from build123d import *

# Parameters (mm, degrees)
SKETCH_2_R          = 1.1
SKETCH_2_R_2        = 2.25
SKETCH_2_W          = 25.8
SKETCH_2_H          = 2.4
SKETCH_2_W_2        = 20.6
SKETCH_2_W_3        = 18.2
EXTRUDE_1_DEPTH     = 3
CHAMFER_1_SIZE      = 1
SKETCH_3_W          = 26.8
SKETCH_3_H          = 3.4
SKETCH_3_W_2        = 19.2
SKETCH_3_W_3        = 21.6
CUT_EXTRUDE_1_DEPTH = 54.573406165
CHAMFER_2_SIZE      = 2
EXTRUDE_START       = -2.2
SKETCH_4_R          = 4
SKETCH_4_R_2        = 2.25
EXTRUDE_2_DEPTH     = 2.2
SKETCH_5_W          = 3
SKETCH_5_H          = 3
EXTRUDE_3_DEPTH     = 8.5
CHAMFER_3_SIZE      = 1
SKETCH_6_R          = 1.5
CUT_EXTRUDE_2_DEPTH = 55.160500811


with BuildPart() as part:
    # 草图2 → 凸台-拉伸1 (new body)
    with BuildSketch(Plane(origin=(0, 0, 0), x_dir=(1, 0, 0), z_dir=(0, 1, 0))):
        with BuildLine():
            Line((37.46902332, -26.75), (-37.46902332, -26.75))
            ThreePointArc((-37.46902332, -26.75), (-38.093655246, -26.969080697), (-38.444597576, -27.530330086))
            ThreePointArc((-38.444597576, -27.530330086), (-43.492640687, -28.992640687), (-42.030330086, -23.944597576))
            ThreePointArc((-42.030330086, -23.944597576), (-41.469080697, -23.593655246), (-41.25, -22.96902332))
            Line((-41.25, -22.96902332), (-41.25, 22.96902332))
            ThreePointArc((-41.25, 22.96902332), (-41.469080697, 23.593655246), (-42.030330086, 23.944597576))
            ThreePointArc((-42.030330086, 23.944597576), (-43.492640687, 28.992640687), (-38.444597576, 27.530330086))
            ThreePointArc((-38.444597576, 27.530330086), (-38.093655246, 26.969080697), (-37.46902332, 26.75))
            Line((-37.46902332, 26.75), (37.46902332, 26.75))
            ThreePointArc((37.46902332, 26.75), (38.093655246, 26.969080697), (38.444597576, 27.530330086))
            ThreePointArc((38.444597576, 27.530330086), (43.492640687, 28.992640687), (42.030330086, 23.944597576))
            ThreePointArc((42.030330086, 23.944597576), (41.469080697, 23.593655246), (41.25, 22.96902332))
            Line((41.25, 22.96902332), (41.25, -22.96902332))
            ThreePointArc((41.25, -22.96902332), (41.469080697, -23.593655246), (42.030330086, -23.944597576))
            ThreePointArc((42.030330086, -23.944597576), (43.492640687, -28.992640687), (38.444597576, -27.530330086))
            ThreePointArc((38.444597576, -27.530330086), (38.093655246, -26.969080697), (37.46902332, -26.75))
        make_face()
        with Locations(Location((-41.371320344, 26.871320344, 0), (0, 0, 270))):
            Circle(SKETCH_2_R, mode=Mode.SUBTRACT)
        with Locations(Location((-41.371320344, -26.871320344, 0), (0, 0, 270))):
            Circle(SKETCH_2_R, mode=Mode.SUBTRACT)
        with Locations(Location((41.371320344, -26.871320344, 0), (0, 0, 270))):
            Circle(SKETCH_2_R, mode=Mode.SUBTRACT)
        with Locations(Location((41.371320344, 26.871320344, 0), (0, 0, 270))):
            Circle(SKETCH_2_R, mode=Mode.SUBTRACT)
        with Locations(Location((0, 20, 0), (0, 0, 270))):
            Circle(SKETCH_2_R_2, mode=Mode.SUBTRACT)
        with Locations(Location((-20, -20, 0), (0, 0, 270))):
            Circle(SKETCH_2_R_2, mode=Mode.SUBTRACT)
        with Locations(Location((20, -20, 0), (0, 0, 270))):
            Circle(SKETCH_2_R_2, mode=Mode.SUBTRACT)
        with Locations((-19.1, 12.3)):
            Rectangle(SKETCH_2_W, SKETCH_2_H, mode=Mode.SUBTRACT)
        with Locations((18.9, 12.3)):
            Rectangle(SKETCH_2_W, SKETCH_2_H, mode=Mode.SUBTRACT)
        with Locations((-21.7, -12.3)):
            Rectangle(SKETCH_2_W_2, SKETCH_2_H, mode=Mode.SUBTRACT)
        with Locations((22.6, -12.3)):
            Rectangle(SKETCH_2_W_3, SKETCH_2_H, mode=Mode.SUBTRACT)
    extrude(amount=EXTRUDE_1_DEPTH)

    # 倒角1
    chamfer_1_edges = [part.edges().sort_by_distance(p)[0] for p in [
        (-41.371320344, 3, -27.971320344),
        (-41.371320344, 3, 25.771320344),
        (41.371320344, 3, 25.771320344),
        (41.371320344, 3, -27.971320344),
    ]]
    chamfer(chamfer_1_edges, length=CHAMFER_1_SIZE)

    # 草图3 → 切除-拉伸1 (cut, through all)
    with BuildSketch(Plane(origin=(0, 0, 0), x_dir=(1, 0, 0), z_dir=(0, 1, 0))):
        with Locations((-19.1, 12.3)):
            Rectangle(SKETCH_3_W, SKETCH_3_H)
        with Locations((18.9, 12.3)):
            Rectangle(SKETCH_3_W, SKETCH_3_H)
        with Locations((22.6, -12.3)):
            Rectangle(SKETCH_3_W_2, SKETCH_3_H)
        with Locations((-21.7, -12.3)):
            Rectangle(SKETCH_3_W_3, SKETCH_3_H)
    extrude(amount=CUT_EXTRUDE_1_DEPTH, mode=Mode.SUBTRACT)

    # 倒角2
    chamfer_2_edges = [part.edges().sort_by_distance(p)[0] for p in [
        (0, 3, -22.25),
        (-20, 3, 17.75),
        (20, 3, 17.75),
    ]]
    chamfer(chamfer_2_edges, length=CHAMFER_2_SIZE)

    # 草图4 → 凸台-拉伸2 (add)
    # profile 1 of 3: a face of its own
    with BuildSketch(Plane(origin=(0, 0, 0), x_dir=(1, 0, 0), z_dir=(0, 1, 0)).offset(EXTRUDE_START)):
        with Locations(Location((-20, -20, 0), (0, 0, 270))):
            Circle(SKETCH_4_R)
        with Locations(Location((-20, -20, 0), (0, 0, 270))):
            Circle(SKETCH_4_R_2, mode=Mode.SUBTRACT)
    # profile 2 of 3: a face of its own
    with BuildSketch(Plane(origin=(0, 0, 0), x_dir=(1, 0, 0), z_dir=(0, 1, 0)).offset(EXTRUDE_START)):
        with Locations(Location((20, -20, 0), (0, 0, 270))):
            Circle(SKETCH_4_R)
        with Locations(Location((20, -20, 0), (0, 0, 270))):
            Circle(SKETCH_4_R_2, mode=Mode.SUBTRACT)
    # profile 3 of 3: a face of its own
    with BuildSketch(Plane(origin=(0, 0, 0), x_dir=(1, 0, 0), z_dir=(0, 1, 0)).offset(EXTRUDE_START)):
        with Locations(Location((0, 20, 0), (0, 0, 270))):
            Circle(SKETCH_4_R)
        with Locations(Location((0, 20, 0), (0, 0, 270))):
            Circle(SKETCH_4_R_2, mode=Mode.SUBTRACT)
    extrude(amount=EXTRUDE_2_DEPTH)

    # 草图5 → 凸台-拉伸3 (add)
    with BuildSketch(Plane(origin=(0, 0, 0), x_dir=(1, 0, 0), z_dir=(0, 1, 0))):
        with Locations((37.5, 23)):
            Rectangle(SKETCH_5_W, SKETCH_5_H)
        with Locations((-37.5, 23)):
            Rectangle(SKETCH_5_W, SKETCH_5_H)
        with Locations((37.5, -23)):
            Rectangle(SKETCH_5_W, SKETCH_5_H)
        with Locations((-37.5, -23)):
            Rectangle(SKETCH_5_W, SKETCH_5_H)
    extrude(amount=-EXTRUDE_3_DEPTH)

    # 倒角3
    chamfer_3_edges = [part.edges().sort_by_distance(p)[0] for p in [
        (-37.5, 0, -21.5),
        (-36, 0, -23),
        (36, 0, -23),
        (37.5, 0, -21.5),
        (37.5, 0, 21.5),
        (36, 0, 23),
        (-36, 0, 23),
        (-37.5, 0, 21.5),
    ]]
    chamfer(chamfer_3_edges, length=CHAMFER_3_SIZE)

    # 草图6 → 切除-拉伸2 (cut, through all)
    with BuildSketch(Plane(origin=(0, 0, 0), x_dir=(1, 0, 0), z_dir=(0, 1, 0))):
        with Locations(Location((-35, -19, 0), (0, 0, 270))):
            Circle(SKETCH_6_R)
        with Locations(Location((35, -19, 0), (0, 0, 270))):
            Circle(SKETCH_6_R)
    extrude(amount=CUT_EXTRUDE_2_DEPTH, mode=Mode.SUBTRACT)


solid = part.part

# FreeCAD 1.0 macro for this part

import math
import FreeCAD as App
import Part
import Sketcher
Q = App.Units.Quantity


def edges_at(feature, points):
    """Names of the edges that pass closest to the given points."""
    edges = feature.Shape.Edges
    near = lambda p: min(range(len(edges)), key=lambda i: edges[i].distToShape(Part.Vertex(*p))[0])
    return sorted({f"Edge{near(p) + 1}" for p in points})

doc = App.newDocument("Part")
params = doc.addObject("Spreadsheet::Sheet", "Params")
for row, (alias, value) in enumerate([
    ("sketch1_radius", "1 mm"),
    ("sketch1_radius2", "3 mm"),
    ("sketch1_diameter", "2.2 mm"),
    ("sketch1_diameter2", "4.5 mm"),
    ("sketch1_width", "18.2 mm"),
    ("pad1_length", "3 mm"),
    ("chamfer_size", "1 mm"),
    ("sketch2_width", "26.8 mm"),
    ("sketch2_width2", "19.2 mm"),
    ("sketch2_width3", "21.6 mm"),
    ("sketch2_height", "3.4 mm"),
    ("chamfer2_size", "2 mm"),
    ("sketch3_diameter", "8 mm"),
    ("sketch3_diameter2", "4.5 mm"),
    ("pad2_length", "2.2 mm"),
    ("sketch4_width", "3 mm"),
    ("pad3_length", "8.5 mm"),
    ("chamfer3_size", "1 mm"),
    ("sketch5_diameter", "3 mm"),
], start=1):
    params.set(f"A{row}", alias)
    params.set(f"B{row}", "=" + value)
    params.setAlias(f"B{row}", alias)

body = doc.addObject("PartDesign::Body", "Body")

# Sketch on XZ plane
sketch1 = body.newObject("Sketcher::SketchObject", "Sketch")
sketch1.AttachmentSupport = (doc.getObject("XZ_Plane"), [""])
sketch1.MapMode = "FlatFace"
sketch1.addGeometry([
    Part.LineSegment(App.Vector(-37.5, 26.8, 0), App.Vector(37.5, 26.8, 0)),  # 0
    Part.ArcOfCircle(Part.Circle(App.Vector(37.5, 27.7, 0), App.Vector(0, 0, 1), 1), math.radians(-90), math.radians(-13)),  # 1
    Part.ArcOfCircle(Part.Circle(App.Vector(41.4, 26.9, 0), App.Vector(0, 0, 1), 3), math.radians(-77), math.radians(167)),  # 2
    Part.ArcOfCircle(Part.Circle(App.Vector(42.2, 23, 0), App.Vector(0, 0, 1), 1), math.radians(103), math.radians(180)),  # 3
    Part.LineSegment(App.Vector(41.2, 23, 0), App.Vector(41.2, -23, 0)),  # 4
    Part.ArcOfCircle(Part.Circle(App.Vector(42.2, -23, 0), App.Vector(0, 0, 1), 1), math.radians(180), math.radians(257)),  # 5
    Part.ArcOfCircle(Part.Circle(App.Vector(41.4, -26.9, 0), App.Vector(0, 0, 1), 3), math.radians(-167), math.radians(77)),  # 6
    Part.ArcOfCircle(Part.Circle(App.Vector(37.5, -27.7, 0), App.Vector(0, 0, 1), 1), math.radians(13), math.radians(90)),  # 7
    Part.LineSegment(App.Vector(37.5, -26.8, 0), App.Vector(-37.5, -26.8, 0)),  # 8
    Part.ArcOfCircle(Part.Circle(App.Vector(-37.5, -27.7, 0), App.Vector(0, 0, 1), 1), math.radians(90), math.radians(167)),  # 9
    Part.ArcOfCircle(Part.Circle(App.Vector(-41.4, -26.9, 0), App.Vector(0, 0, 1), 3), math.radians(103), math.radians(347)),  # 10
    Part.ArcOfCircle(Part.Circle(App.Vector(-42.2, -23, 0), App.Vector(0, 0, 1), 1), math.radians(-77), math.radians(0)),  # 11
    Part.LineSegment(App.Vector(-41.2, -23, 0), App.Vector(-41.2, 23, 0)),  # 12
    Part.ArcOfCircle(Part.Circle(App.Vector(-42.2, 23, 0), App.Vector(0, 0, 1), 1), math.radians(0), math.radians(77)),  # 13
    Part.ArcOfCircle(Part.Circle(App.Vector(-41.4, 26.9, 0), App.Vector(0, 0, 1), 3), math.radians(13), math.radians(257)),  # 14
    Part.ArcOfCircle(Part.Circle(App.Vector(-37.5, 27.7, 0), App.Vector(0, 0, 1), 1), math.radians(-167), math.radians(-90)),  # 15
    Part.Circle(App.Vector(41.4, 26.9, 0), App.Vector(0, 0, 1), 1.1),  # 16
    Part.Circle(App.Vector(20, 20, 0), App.Vector(0, 0, 1), 2.2),  # 17
    Part.LineSegment(App.Vector(13.5, 13.5, 0), App.Vector(13.5, 11.1, 0)),  # 18
    Part.LineSegment(App.Vector(13.5, 11.1, 0), App.Vector(31.7, 11.1, 0)),  # 19
    Part.LineSegment(App.Vector(31.7, 11.1, 0), App.Vector(31.7, 13.5, 0)),  # 20
    Part.LineSegment(App.Vector(31.7, 13.5, 0), App.Vector(13.5, 13.5, 0)),  # 21
    Part.Circle(App.Vector(-20, 20, 0), App.Vector(0, 0, 1), 2.2),  # 22
    Part.Circle(App.Vector(-41.4, 26.9, 0), App.Vector(0, 0, 1), 1.1),  # 23
    Part.LineSegment(App.Vector(-32, 13.5, 0), App.Vector(-32, 11.1, 0)),  # 24
    Part.LineSegment(App.Vector(-32, 11.1, 0), App.Vector(-11.4, 11.1, 0)),  # 25
    Part.LineSegment(App.Vector(-11.4, 11.1, 0), App.Vector(-11.4, 13.5, 0)),  # 26
    Part.LineSegment(App.Vector(-11.4, 13.5, 0), App.Vector(-32, 13.5, 0)),  # 27
    Part.LineSegment(App.Vector(6, -11.1, 0), App.Vector(6, -13.5, 0)),  # 28
    Part.LineSegment(App.Vector(6, -13.5, 0), App.Vector(31.8, -13.5, 0)),  # 29
    Part.LineSegment(App.Vector(31.8, -13.5, 0), App.Vector(31.8, -11.1, 0)),  # 30
    Part.LineSegment(App.Vector(31.8, -11.1, 0), App.Vector(6, -11.1, 0)),  # 31
    Part.Circle(App.Vector(41.4, -26.9, 0), App.Vector(0, 0, 1), 1.1),  # 32
    Part.LineSegment(App.Vector(-32, -11.1, 0), App.Vector(-32, -13.5, 0)),  # 33
    Part.LineSegment(App.Vector(-32, -13.5, 0), App.Vector(-6.2, -13.5, 0)),  # 34
    Part.LineSegment(App.Vector(-6.2, -13.5, 0), App.Vector(-6.2, -11.1, 0)),  # 35
    Part.LineSegment(App.Vector(-6.2, -11.1, 0), App.Vector(-32, -11.1, 0)),  # 36
    Part.Circle(App.Vector(0, -20, 0), App.Vector(0, 0, 1), 2.2),  # 37
    Part.Circle(App.Vector(-41.4, -26.9, 0), App.Vector(0, 0, 1), 1.1),  # 38
], False)
sketch1.addConstraint([
    Sketcher.Constraint("Tangent", 0, 2, 1, 1),
    Sketcher.Constraint("Tangent", 1, 2, 2, 2),
    Sketcher.Constraint("Tangent", 2, 1, 3, 1),
    Sketcher.Constraint("Tangent", 3, 2, 4, 1),
    Sketcher.Constraint("Tangent", 4, 2, 5, 1),
    Sketcher.Constraint("Tangent", 5, 2, 6, 2),
    Sketcher.Constraint("Tangent", 6, 1, 7, 1),
    Sketcher.Constraint("Tangent", 7, 2, 8, 1),
    Sketcher.Constraint("Tangent", 8, 2, 9, 1),
    Sketcher.Constraint("Tangent", 9, 2, 10, 2),
    Sketcher.Constraint("Tangent", 10, 1, 11, 1),
    Sketcher.Constraint("Tangent", 11, 2, 12, 1),
    Sketcher.Constraint("Tangent", 12, 2, 13, 1),
    Sketcher.Constraint("Tangent", 13, 2, 14, 2),
    Sketcher.Constraint("Tangent", 14, 1, 15, 1),
    Sketcher.Constraint("Tangent", 15, 2, 0, 1),
    Sketcher.Constraint("Coincident", 18, 2, 19, 1),
    Sketcher.Constraint("Coincident", 19, 2, 20, 1),
    Sketcher.Constraint("Coincident", 20, 2, 21, 1),
    Sketcher.Constraint("Coincident", 21, 2, 18, 1),
    Sketcher.Constraint("Coincident", 24, 2, 25, 1),
    Sketcher.Constraint("Coincident", 25, 2, 26, 1),
    Sketcher.Constraint("Coincident", 26, 2, 27, 1),
    Sketcher.Constraint("Coincident", 27, 2, 24, 1),
    Sketcher.Constraint("Coincident", 28, 2, 29, 1),
    Sketcher.Constraint("Coincident", 29, 2, 30, 1),
    Sketcher.Constraint("Coincident", 30, 2, 31, 1),
    Sketcher.Constraint("Coincident", 31, 2, 28, 1),
    Sketcher.Constraint("Coincident", 33, 2, 34, 1),
    Sketcher.Constraint("Coincident", 34, 2, 35, 1),
    Sketcher.Constraint("Coincident", 35, 2, 36, 1),
    Sketcher.Constraint("Coincident", 36, 2, 33, 1),
    Sketcher.Constraint("Horizontal", 0),
    Sketcher.Constraint("Vertical", 4),
    Sketcher.Constraint("Horizontal", 8),
    Sketcher.Constraint("Vertical", 12),
    Sketcher.Constraint("Vertical", 18),
    Sketcher.Constraint("Horizontal", 19),
    Sketcher.Constraint("Vertical", 20),
    Sketcher.Constraint("Horizontal", 21),
    Sketcher.Constraint("Vertical", 24),
    Sketcher.Constraint("Horizontal", 25),
    Sketcher.Constraint("Vertical", 26),
    Sketcher.Constraint("Horizontal", 27),
    Sketcher.Constraint("Vertical", 28),
    Sketcher.Constraint("Horizontal", 29),
    Sketcher.Constraint("Vertical", 30),
    Sketcher.Constraint("Horizontal", 31),
    Sketcher.Constraint("Vertical", 33),
    Sketcher.Constraint("Horizontal", 34),
    Sketcher.Constraint("Vertical", 35),
    Sketcher.Constraint("Horizontal", 36),
    Sketcher.Constraint("Coincident", 16, 3, 2, 3),
    Sketcher.Constraint("Coincident", 23, 3, 14, 3),
    Sketcher.Constraint("Coincident", 32, 3, 6, 3),
    Sketcher.Constraint("Coincident", 38, 3, 10, 3),
    Sketcher.Constraint("Equal", 1, 3),
    Sketcher.Constraint("Equal", 3, 5),
    Sketcher.Constraint("Equal", 2, 6),
    Sketcher.Constraint("Equal", 5, 7),
    Sketcher.Constraint("Equal", 7, 9),
    Sketcher.Constraint("Equal", 6, 10),
    Sketcher.Constraint("Equal", 9, 11),
    Sketcher.Constraint("Equal", 11, 13),
    Sketcher.Constraint("Equal", 10, 14),
    Sketcher.Constraint("Equal", 13, 15),
    Sketcher.Constraint("Equal", 17, 22),
    Sketcher.Constraint("Equal", 16, 23),
    Sketcher.Constraint("Equal", 23, 32),
    Sketcher.Constraint("Equal", 22, 37),
    Sketcher.Constraint("Equal", 32, 38),
    Sketcher.Constraint("Symmetric", 1, 3, 9, 3, -1, 1),
    Sketcher.Constraint("Symmetric", 3, 3, 11, 3, -1, 1),
    Sketcher.Constraint("Symmetric", 6, 3, 14, 3, -1, 1),
    Sketcher.Constraint("Symmetric", 6, 3, 10, 3, -2),
    Sketcher.Constraint("Symmetric", 17, 3, 22, 3, -2),
    Sketcher.Constraint("Symmetric", 27, 2, 33, 2, -1),
    Sketcher.Constraint("PointOnObject", 37, 3, -2),
    Sketcher.Constraint("Horizontal", 19, 2, 24, 2),
    Sketcher.Constraint("Horizontal", 21, 2, 26, 2),
    Sketcher.Constraint("Horizontal", 29, 2, 33, 2),
    Sketcher.Constraint("Horizontal", 31, 2, 35, 2),
    Sketcher.Constraint("Equal", 31, 34),
    Sketcher.Constraint("Equal", 26, 28),
    Sketcher.Constraint("Radius", 1, Q("1 mm")),
    Sketcher.Constraint("Radius", 2, Q("3 mm")),
    Sketcher.Constraint("Diameter", 16, Q("2.2 mm")),
    Sketcher.Constraint("Diameter", 17, Q("4.5 mm")),
    Sketcher.Constraint("DistanceX", 19, 1, 19, 2, Q("18.2 mm")),
    Sketcher.Constraint("DistanceX", 25, 1, 25, 2, Q("20.6 mm")),
    Sketcher.Constraint("DistanceX", 29, 1, 29, 2, Q("25.8 mm")),
    Sketcher.Constraint("DistanceY", 18, 2, 18, 1, Q("2.4 mm")),
    Sketcher.Constraint("DistanceX", -1, 1, 17, 3, Q("20 mm")),
    Sketcher.Constraint("DistanceY", -1, 1, 17, 3, Q("20 mm")),
    Sketcher.Constraint("DistanceY", 37, 3, -1, 1, Q("20 mm")),
    Sketcher.Constraint("DistanceX", 24, 2, -1, 1, Q("32 mm")),
    Sketcher.Constraint("DistanceX", -1, 1, 28, 2, Q("6 mm")),
    Sketcher.Constraint("DistanceY", 28, 2, 21, 2, Q("27 mm")),
    Sketcher.Constraint("DistanceX", -1, 1, 18, 2, Q("13.5 mm")),
    Sketcher.Constraint("DistanceY", 7, 3, 1, 3, Q("55.5 mm")),
    Sketcher.Constraint("DistanceX", 11, 3, 5, 3, Q("84.5 mm")),
    Sketcher.Constraint("DistanceX", 0, 1, 0, 2, Q("74.938047 mm")),
    Sketcher.Constraint("DistanceY", 4, 2, 4, 1, Q("45.938047 mm")),
])
sketch1.setExpression("Constraints[84]", "Params.sketch1_radius")
sketch1.setExpression("Constraints[85]", "Params.sketch1_radius2")
sketch1.setExpression("Constraints[86]", "Params.sketch1_diameter")
sketch1.setExpression("Constraints[87]", "Params.sketch1_diameter2")
sketch1.setExpression("Constraints[88]", "Params.sketch1_width")
pad1 = body.newObject("PartDesign::Pad", "Pad")
pad1.Profile = sketch1
pad1.setExpression("Length", "Params.pad1_length")
pad1.Reversed = True
doc.recompute()

chamfer = body.newObject("PartDesign::Chamfer", "Chamfer")
chamfer.Base = (pad1, edges_at(pad1, [
    (-41.371, 3, -27.971),
    (-41.371, 3, 25.771),
    (41.371, 3, 25.771),
    (41.371, 3, -27.971),
]))
chamfer.setExpression("Size", "Params.chamfer_size")

# Sketch on XZ plane
sketch2 = body.newObject("Sketcher::SketchObject", "Sketch001")
sketch2.AttachmentSupport = (doc.getObject("XZ_Plane"), [""])
sketch2.MapMode = "FlatFace"
sketch2.addGeometry([
    Part.LineSegment(App.Vector(-32.5, -14, 0), App.Vector(-32.5, -10.6, 0)),  # 0
    Part.LineSegment(App.Vector(-32.5, -10.6, 0), App.Vector(-5.7, -10.6, 0)),  # 1
    Part.LineSegment(App.Vector(-5.7, -10.6, 0), App.Vector(-5.7, -14, 0)),  # 2
    Part.LineSegment(App.Vector(-5.7, -14, 0), App.Vector(-32.5, -14, 0)),  # 3
    Part.LineSegment(App.Vector(5.5, -14, 0), App.Vector(5.5, -10.6, 0)),  # 4
    Part.LineSegment(App.Vector(5.5, -10.6, 0), App.Vector(32.3, -10.6, 0)),  # 5
    Part.LineSegment(App.Vector(32.3, -10.6, 0), App.Vector(32.3, -14, 0)),  # 6
    Part.LineSegment(App.Vector(32.3, -14, 0), App.Vector(5.5, -14, 0)),  # 7
    Part.LineSegment(App.Vector(13, 10.6, 0), App.Vector(13, 14, 0)),  # 8
    Part.LineSegment(App.Vector(13, 14, 0), App.Vector(32.2, 14, 0)),  # 9
    Part.LineSegment(App.Vector(32.2, 14, 0), App.Vector(32.2, 10.6, 0)),  # 10
    Part.LineSegment(App.Vector(32.2, 10.6, 0), App.Vector(13, 10.6, 0)),  # 11
    Part.LineSegment(App.Vector(-32.5, 10.6, 0), App.Vector(-32.5, 14, 0)),  # 12
    Part.LineSegment(App.Vector(-32.5, 14, 0), App.Vector(-10.9, 14, 0)),  # 13
    Part.LineSegment(App.Vector(-10.9, 14, 0), App.Vector(-10.9, 10.6, 0)),  # 14
    Part.LineSegment(App.Vector(-10.9, 10.6, 0), App.Vector(-32.5, 10.6, 0)),  # 15
], False)
sketch2.addConstraint([
    Sketcher.Constraint("Coincident", 0, 2, 1, 1),
    Sketcher.Constraint("Coincident", 1, 2, 2, 1),
    Sketcher.Constraint("Coincident", 2, 2, 3, 1),
    Sketcher.Constraint("Coincident", 3, 2, 0, 1),
    Sketcher.Constraint("Coincident", 4, 2, 5, 1),
    Sketcher.Constraint("Coincident", 5, 2, 6, 1),
    Sketcher.Constraint("Coincident", 6, 2, 7, 1),
    Sketcher.Constraint("Coincident", 7, 2, 4, 1),
    Sketcher.Constraint("Coincident", 8, 2, 9, 1),
    Sketcher.Constraint("Coincident", 9, 2, 10, 1),
    Sketcher.Constraint("Coincident", 10, 2, 11, 1),
    Sketcher.Constraint("Coincident", 11, 2, 8, 1),
    Sketcher.Constraint("Coincident", 12, 2, 13, 1),
    Sketcher.Constraint("Coincident", 13, 2, 14, 1),
    Sketcher.Constraint("Coincident", 14, 2, 15, 1),
    Sketcher.Constraint("Coincident", 15, 2, 12, 1),
    Sketcher.Constraint("Vertical", 0),
    Sketcher.Constraint("Horizontal", 1),
    Sketcher.Constraint("Vertical", 2),
    Sketcher.Constraint("Horizontal", 3),
    Sketcher.Constraint("Vertical", 4),
    Sketcher.Constraint("Horizontal", 5),
    Sketcher.Constraint("Vertical", 6),
    Sketcher.Constraint("Horizontal", 7),
    Sketcher.Constraint("Vertical", 8),
    Sketcher.Constraint("Horizontal", 9),
    Sketcher.Constraint("Vertical", 10),
    Sketcher.Constraint("Horizontal", 11),
    Sketcher.Constraint("Vertical", 12),
    Sketcher.Constraint("Horizontal", 13),
    Sketcher.Constraint("Vertical", 14),
    Sketcher.Constraint("Horizontal", 15),
    Sketcher.Constraint("Symmetric", 3, 2, 12, 2, -1),
    Sketcher.Constraint("Horizontal", 1, 2, 4, 2),
    Sketcher.Constraint("Horizontal", 3, 2, 6, 2),
    Sketcher.Constraint("Horizontal", 9, 2, 12, 2),
    Sketcher.Constraint("Horizontal", 11, 2, 14, 2),
    Sketcher.Constraint("Equal", 3, 5),
    Sketcher.Constraint("Equal", 6, 8),
    Sketcher.Constraint("DistanceX", 1, 1, 1, 2, Q("26.8 mm")),
    Sketcher.Constraint("DistanceX", 9, 1, 9, 2, Q("19.2 mm")),
    Sketcher.Constraint("DistanceX", 13, 1, 13, 2, Q("21.6 mm")),
    Sketcher.Constraint("DistanceY", 0, 1, 0, 2, Q("3.4 mm")),
    Sketcher.Constraint("DistanceY", 2, 2, -1, 1, Q("14 mm")),
    Sketcher.Constraint("DistanceX", -1, 1, 8, 2, Q("13 mm")),
    Sketcher.Constraint("DistanceX", 0, 2, 4, 2, Q("38 mm")),
    Sketcher.Constraint("DistanceX", 0, 2, -1, 1, Q("32.5 mm")),
])
sketch2.setExpression("Constraints[39]", "Params.sketch2_width")
sketch2.setExpression("Constraints[40]", "Params.sketch2_width2")
sketch2.setExpression("Constraints[41]", "Params.sketch2_width3")
sketch2.setExpression("Constraints[42]", "Params.sketch2_height")
pocket1 = body.newObject("PartDesign::Pocket", "Pocket")
pocket1.Profile = sketch2
pocket1.Type = "ThroughAll"
doc.recompute()

chamfer2 = body.newObject("PartDesign::Chamfer", "Chamfer001")
chamfer2.Base = (pocket1, edges_at(pocket1, [(0, 3, -22.25), (-20, 3, 17.75), (20, 3, 17.75)]))
chamfer2.setExpression("Size", "Params.chamfer2_size")

# Sketch on XZ plane
sketch3 = body.newObject("Sketcher::SketchObject", "Sketch002")
sketch3.AttachmentSupport = (doc.getObject("XZ_Plane"), [""])
sketch3.MapMode = "FlatFace"
sketch3.AttachmentOffset = App.Placement(App.Vector(0, 0, 2.2), App.Rotation())
sketch3.addGeometry([
    Part.Circle(App.Vector(-20, 20, 0), App.Vector(0, 0, 1), 4),  # 0
    Part.Circle(App.Vector(-20, 20, 0), App.Vector(0, 0, 1), 2.2),  # 1
    Part.Circle(App.Vector(20, 20, 0), App.Vector(0, 0, 1), 4),  # 2
    Part.Circle(App.Vector(20, 20, 0), App.Vector(0, 0, 1), 2.2),  # 3
    Part.Circle(App.Vector(0, -20, 0), App.Vector(0, 0, 1), 4),  # 4
    Part.Circle(App.Vector(0, -20, 0), App.Vector(0, 0, 1), 2.2),  # 5
], False)
sketch3.addConstraint([
    Sketcher.Constraint("Coincident", 1, 3, 0, 3),
    Sketcher.Constraint("Coincident", 3, 3, 2, 3),
    Sketcher.Constraint("Coincident", 5, 3, 4, 3),
    Sketcher.Constraint("Equal", 0, 2),
    Sketcher.Constraint("Equal", 1, 3),
    Sketcher.Constraint("Equal", 2, 4),
    Sketcher.Constraint("Equal", 3, 5),
    Sketcher.Constraint("Symmetric", 0, 3, 2, 3, -2),
    Sketcher.Constraint("PointOnObject", 4, 3, -2),
    Sketcher.Constraint("Diameter", 0, Q("8 mm")),
    Sketcher.Constraint("Diameter", 1, Q("4.5 mm")),
    Sketcher.Constraint("DistanceX", 0, 3, -1, 1, Q("20 mm")),
    Sketcher.Constraint("DistanceY", -1, 1, 0, 3, Q("20 mm")),
    Sketcher.Constraint("DistanceY", 4, 3, -1, 1, Q("20 mm")),
])
sketch3.setExpression("Constraints[9]", "Params.sketch3_diameter")
sketch3.setExpression("Constraints[10]", "Params.sketch3_diameter2")
pad2 = body.newObject("PartDesign::Pad", "Pad001")
pad2.Profile = sketch3
pad2.setExpression("Length", "Params.pad2_length")
pad2.Reversed = True

# Sketch on XZ plane
sketch4 = body.newObject("Sketcher::SketchObject", "Sketch003")
sketch4.AttachmentSupport = (doc.getObject("XZ_Plane"), [""])
sketch4.MapMode = "FlatFace"
sketch4.addGeometry([
    Part.LineSegment(App.Vector(36, -24.5, 0), App.Vector(36, -21.5, 0)),  # 0
    Part.LineSegment(App.Vector(36, -21.5, 0), App.Vector(39, -21.5, 0)),  # 1
    Part.LineSegment(App.Vector(39, -21.5, 0), App.Vector(39, -24.5, 0)),  # 2
    Part.LineSegment(App.Vector(39, -24.5, 0), App.Vector(36, -24.5, 0)),  # 3
    Part.LineSegment(App.Vector(-39, -24.5, 0), App.Vector(-39, -21.5, 0)),  # 4
    Part.LineSegment(App.Vector(-39, -21.5, 0), App.Vector(-36, -21.5, 0)),  # 5
    Part.LineSegment(App.Vector(-36, -21.5, 0), App.Vector(-36, -24.5, 0)),  # 6
    Part.LineSegment(App.Vector(-36, -24.5, 0), App.Vector(-39, -24.5, 0)),  # 7
    Part.LineSegment(App.Vector(36, 21.5, 0), App.Vector(36, 24.5, 0)),  # 8
    Part.LineSegment(App.Vector(36, 24.5, 0), App.Vector(39, 24.5, 0)),  # 9
    Part.LineSegment(App.Vector(39, 24.5, 0), App.Vector(39, 21.5, 0)),  # 10
    Part.LineSegment(App.Vector(39, 21.5, 0), App.Vector(36, 21.5, 0)),  # 11
    Part.LineSegment(App.Vector(-39, 21.5, 0), App.Vector(-39, 24.5, 0)),  # 12
    Part.LineSegment(App.Vector(-39, 24.5, 0), App.Vector(-36, 24.5, 0)),  # 13
    Part.LineSegment(App.Vector(-36, 24.5, 0), App.Vector(-36, 21.5, 0)),  # 14
    Part.LineSegment(App.Vector(-36, 21.5, 0), App.Vector(-39, 21.5, 0)),  # 15
], False)
sketch4.addConstraint([
    Sketcher.Constraint("Coincident", 0, 2, 1, 1),
    Sketcher.Constraint("Coincident", 1, 2, 2, 1),
    Sketcher.Constraint("Coincident", 2, 2, 3, 1),
    Sketcher.Constraint("Coincident", 3, 2, 0, 1),
    Sketcher.Constraint("Coincident", 4, 2, 5, 1),
    Sketcher.Constraint("Coincident", 5, 2, 6, 1),
    Sketcher.Constraint("Coincident", 6, 2, 7, 1),
    Sketcher.Constraint("Coincident", 7, 2, 4, 1),
    Sketcher.Constraint("Coincident", 8, 2, 9, 1),
    Sketcher.Constraint("Coincident", 9, 2, 10, 1),
    Sketcher.Constraint("Coincident", 10, 2, 11, 1),
    Sketcher.Constraint("Coincident", 11, 2, 8, 1),
    Sketcher.Constraint("Coincident", 12, 2, 13, 1),
    Sketcher.Constraint("Coincident", 13, 2, 14, 1),
    Sketcher.Constraint("Coincident", 14, 2, 15, 1),
    Sketcher.Constraint("Coincident", 15, 2, 12, 1),
    Sketcher.Constraint("Vertical", 0),
    Sketcher.Constraint("Horizontal", 1),
    Sketcher.Constraint("Vertical", 2),
    Sketcher.Constraint("Horizontal", 3),
    Sketcher.Constraint("Vertical", 4),
    Sketcher.Constraint("Horizontal", 5),
    Sketcher.Constraint("Vertical", 6),
    Sketcher.Constraint("Horizontal", 7),
    Sketcher.Constraint("Vertical", 8),
    Sketcher.Constraint("Horizontal", 9),
    Sketcher.Constraint("Vertical", 10),
    Sketcher.Constraint("Horizontal", 11),
    Sketcher.Constraint("Vertical", 12),
    Sketcher.Constraint("Horizontal", 13),
    Sketcher.Constraint("Vertical", 14),
    Sketcher.Constraint("Horizontal", 15),
    Sketcher.Constraint("Symmetric", 6, 2, 8, 2, -1, 1),
    Sketcher.Constraint("Symmetric", 4, 2, 10, 2, -1, 1),
    Sketcher.Constraint("Symmetric", 2, 2, 12, 2, -1, 1),
    Sketcher.Constraint("Symmetric", 0, 2, 14, 2, -1, 1),
    Sketcher.Constraint("Symmetric", 1, 2, 4, 2, -2),
    Sketcher.Constraint("Symmetric", 3, 2, 6, 2, -2),
    Sketcher.Constraint("Equal", 15, 0),
    Sketcher.Constraint("DistanceX", 1, 1, 1, 2, Q("3 mm")),
    Sketcher.Constraint("DistanceX", -1, 1, 0, 2, Q("36 mm")),
    Sketcher.Constraint("DistanceY", 0, 2, 8, 2, Q("46 mm")),
])
sketch4.setExpression("Constraints[39]", "Params.sketch4_width")
pad3 = body.newObject("PartDesign::Pad", "Pad002")
pad3.Profile = sketch4
pad3.setExpression("Length", "Params.pad3_length")
doc.recompute()

chamfer3 = body.newObject("PartDesign::Chamfer", "Chamfer002")
chamfer3.Base = (pad3, edges_at(pad3, [
    (-37.5, 0, -21.5),
    (-36, 0, -23),
    (36, 0, -23),
    (37.5, 0, -21.5),
    (37.5, 0, 21.5),
    (36, 0, 23),
    (-36, 0, 23),
    (-37.5, 0, 21.5),
]))
chamfer3.setExpression("Size", "Params.chamfer3_size")

# Sketch on XZ plane
sketch5 = body.newObject("Sketcher::SketchObject", "Sketch004")
sketch5.AttachmentSupport = (doc.getObject("XZ_Plane"), [""])
sketch5.MapMode = "FlatFace"
sketch5.addGeometry([
    Part.Circle(App.Vector(-35, 19, 0), App.Vector(0, 0, 1), 1.5),
    Part.Circle(App.Vector(35, 19, 0), App.Vector(0, 0, 1), 1.5),
], False)
sketch5.addConstraint([
    Sketcher.Constraint("Equal", 0, 1),
    Sketcher.Constraint("Symmetric", 0, 3, 1, 3, -2),
    Sketcher.Constraint("Diameter", 0, Q("3 mm")),
    Sketcher.Constraint("DistanceX", 0, 3, -1, 1, Q("35 mm")),
    Sketcher.Constraint("DistanceY", -1, 1, 0, 3, Q("19 mm")),
])
sketch5.setExpression("Constraints[2]", "Params.sketch5_diameter")
pocket2 = body.newObject("PartDesign::Pocket", "Pocket001")
pocket2.Profile = sketch5
pocket2.Type = "ThroughAll"

doc.recompute()
